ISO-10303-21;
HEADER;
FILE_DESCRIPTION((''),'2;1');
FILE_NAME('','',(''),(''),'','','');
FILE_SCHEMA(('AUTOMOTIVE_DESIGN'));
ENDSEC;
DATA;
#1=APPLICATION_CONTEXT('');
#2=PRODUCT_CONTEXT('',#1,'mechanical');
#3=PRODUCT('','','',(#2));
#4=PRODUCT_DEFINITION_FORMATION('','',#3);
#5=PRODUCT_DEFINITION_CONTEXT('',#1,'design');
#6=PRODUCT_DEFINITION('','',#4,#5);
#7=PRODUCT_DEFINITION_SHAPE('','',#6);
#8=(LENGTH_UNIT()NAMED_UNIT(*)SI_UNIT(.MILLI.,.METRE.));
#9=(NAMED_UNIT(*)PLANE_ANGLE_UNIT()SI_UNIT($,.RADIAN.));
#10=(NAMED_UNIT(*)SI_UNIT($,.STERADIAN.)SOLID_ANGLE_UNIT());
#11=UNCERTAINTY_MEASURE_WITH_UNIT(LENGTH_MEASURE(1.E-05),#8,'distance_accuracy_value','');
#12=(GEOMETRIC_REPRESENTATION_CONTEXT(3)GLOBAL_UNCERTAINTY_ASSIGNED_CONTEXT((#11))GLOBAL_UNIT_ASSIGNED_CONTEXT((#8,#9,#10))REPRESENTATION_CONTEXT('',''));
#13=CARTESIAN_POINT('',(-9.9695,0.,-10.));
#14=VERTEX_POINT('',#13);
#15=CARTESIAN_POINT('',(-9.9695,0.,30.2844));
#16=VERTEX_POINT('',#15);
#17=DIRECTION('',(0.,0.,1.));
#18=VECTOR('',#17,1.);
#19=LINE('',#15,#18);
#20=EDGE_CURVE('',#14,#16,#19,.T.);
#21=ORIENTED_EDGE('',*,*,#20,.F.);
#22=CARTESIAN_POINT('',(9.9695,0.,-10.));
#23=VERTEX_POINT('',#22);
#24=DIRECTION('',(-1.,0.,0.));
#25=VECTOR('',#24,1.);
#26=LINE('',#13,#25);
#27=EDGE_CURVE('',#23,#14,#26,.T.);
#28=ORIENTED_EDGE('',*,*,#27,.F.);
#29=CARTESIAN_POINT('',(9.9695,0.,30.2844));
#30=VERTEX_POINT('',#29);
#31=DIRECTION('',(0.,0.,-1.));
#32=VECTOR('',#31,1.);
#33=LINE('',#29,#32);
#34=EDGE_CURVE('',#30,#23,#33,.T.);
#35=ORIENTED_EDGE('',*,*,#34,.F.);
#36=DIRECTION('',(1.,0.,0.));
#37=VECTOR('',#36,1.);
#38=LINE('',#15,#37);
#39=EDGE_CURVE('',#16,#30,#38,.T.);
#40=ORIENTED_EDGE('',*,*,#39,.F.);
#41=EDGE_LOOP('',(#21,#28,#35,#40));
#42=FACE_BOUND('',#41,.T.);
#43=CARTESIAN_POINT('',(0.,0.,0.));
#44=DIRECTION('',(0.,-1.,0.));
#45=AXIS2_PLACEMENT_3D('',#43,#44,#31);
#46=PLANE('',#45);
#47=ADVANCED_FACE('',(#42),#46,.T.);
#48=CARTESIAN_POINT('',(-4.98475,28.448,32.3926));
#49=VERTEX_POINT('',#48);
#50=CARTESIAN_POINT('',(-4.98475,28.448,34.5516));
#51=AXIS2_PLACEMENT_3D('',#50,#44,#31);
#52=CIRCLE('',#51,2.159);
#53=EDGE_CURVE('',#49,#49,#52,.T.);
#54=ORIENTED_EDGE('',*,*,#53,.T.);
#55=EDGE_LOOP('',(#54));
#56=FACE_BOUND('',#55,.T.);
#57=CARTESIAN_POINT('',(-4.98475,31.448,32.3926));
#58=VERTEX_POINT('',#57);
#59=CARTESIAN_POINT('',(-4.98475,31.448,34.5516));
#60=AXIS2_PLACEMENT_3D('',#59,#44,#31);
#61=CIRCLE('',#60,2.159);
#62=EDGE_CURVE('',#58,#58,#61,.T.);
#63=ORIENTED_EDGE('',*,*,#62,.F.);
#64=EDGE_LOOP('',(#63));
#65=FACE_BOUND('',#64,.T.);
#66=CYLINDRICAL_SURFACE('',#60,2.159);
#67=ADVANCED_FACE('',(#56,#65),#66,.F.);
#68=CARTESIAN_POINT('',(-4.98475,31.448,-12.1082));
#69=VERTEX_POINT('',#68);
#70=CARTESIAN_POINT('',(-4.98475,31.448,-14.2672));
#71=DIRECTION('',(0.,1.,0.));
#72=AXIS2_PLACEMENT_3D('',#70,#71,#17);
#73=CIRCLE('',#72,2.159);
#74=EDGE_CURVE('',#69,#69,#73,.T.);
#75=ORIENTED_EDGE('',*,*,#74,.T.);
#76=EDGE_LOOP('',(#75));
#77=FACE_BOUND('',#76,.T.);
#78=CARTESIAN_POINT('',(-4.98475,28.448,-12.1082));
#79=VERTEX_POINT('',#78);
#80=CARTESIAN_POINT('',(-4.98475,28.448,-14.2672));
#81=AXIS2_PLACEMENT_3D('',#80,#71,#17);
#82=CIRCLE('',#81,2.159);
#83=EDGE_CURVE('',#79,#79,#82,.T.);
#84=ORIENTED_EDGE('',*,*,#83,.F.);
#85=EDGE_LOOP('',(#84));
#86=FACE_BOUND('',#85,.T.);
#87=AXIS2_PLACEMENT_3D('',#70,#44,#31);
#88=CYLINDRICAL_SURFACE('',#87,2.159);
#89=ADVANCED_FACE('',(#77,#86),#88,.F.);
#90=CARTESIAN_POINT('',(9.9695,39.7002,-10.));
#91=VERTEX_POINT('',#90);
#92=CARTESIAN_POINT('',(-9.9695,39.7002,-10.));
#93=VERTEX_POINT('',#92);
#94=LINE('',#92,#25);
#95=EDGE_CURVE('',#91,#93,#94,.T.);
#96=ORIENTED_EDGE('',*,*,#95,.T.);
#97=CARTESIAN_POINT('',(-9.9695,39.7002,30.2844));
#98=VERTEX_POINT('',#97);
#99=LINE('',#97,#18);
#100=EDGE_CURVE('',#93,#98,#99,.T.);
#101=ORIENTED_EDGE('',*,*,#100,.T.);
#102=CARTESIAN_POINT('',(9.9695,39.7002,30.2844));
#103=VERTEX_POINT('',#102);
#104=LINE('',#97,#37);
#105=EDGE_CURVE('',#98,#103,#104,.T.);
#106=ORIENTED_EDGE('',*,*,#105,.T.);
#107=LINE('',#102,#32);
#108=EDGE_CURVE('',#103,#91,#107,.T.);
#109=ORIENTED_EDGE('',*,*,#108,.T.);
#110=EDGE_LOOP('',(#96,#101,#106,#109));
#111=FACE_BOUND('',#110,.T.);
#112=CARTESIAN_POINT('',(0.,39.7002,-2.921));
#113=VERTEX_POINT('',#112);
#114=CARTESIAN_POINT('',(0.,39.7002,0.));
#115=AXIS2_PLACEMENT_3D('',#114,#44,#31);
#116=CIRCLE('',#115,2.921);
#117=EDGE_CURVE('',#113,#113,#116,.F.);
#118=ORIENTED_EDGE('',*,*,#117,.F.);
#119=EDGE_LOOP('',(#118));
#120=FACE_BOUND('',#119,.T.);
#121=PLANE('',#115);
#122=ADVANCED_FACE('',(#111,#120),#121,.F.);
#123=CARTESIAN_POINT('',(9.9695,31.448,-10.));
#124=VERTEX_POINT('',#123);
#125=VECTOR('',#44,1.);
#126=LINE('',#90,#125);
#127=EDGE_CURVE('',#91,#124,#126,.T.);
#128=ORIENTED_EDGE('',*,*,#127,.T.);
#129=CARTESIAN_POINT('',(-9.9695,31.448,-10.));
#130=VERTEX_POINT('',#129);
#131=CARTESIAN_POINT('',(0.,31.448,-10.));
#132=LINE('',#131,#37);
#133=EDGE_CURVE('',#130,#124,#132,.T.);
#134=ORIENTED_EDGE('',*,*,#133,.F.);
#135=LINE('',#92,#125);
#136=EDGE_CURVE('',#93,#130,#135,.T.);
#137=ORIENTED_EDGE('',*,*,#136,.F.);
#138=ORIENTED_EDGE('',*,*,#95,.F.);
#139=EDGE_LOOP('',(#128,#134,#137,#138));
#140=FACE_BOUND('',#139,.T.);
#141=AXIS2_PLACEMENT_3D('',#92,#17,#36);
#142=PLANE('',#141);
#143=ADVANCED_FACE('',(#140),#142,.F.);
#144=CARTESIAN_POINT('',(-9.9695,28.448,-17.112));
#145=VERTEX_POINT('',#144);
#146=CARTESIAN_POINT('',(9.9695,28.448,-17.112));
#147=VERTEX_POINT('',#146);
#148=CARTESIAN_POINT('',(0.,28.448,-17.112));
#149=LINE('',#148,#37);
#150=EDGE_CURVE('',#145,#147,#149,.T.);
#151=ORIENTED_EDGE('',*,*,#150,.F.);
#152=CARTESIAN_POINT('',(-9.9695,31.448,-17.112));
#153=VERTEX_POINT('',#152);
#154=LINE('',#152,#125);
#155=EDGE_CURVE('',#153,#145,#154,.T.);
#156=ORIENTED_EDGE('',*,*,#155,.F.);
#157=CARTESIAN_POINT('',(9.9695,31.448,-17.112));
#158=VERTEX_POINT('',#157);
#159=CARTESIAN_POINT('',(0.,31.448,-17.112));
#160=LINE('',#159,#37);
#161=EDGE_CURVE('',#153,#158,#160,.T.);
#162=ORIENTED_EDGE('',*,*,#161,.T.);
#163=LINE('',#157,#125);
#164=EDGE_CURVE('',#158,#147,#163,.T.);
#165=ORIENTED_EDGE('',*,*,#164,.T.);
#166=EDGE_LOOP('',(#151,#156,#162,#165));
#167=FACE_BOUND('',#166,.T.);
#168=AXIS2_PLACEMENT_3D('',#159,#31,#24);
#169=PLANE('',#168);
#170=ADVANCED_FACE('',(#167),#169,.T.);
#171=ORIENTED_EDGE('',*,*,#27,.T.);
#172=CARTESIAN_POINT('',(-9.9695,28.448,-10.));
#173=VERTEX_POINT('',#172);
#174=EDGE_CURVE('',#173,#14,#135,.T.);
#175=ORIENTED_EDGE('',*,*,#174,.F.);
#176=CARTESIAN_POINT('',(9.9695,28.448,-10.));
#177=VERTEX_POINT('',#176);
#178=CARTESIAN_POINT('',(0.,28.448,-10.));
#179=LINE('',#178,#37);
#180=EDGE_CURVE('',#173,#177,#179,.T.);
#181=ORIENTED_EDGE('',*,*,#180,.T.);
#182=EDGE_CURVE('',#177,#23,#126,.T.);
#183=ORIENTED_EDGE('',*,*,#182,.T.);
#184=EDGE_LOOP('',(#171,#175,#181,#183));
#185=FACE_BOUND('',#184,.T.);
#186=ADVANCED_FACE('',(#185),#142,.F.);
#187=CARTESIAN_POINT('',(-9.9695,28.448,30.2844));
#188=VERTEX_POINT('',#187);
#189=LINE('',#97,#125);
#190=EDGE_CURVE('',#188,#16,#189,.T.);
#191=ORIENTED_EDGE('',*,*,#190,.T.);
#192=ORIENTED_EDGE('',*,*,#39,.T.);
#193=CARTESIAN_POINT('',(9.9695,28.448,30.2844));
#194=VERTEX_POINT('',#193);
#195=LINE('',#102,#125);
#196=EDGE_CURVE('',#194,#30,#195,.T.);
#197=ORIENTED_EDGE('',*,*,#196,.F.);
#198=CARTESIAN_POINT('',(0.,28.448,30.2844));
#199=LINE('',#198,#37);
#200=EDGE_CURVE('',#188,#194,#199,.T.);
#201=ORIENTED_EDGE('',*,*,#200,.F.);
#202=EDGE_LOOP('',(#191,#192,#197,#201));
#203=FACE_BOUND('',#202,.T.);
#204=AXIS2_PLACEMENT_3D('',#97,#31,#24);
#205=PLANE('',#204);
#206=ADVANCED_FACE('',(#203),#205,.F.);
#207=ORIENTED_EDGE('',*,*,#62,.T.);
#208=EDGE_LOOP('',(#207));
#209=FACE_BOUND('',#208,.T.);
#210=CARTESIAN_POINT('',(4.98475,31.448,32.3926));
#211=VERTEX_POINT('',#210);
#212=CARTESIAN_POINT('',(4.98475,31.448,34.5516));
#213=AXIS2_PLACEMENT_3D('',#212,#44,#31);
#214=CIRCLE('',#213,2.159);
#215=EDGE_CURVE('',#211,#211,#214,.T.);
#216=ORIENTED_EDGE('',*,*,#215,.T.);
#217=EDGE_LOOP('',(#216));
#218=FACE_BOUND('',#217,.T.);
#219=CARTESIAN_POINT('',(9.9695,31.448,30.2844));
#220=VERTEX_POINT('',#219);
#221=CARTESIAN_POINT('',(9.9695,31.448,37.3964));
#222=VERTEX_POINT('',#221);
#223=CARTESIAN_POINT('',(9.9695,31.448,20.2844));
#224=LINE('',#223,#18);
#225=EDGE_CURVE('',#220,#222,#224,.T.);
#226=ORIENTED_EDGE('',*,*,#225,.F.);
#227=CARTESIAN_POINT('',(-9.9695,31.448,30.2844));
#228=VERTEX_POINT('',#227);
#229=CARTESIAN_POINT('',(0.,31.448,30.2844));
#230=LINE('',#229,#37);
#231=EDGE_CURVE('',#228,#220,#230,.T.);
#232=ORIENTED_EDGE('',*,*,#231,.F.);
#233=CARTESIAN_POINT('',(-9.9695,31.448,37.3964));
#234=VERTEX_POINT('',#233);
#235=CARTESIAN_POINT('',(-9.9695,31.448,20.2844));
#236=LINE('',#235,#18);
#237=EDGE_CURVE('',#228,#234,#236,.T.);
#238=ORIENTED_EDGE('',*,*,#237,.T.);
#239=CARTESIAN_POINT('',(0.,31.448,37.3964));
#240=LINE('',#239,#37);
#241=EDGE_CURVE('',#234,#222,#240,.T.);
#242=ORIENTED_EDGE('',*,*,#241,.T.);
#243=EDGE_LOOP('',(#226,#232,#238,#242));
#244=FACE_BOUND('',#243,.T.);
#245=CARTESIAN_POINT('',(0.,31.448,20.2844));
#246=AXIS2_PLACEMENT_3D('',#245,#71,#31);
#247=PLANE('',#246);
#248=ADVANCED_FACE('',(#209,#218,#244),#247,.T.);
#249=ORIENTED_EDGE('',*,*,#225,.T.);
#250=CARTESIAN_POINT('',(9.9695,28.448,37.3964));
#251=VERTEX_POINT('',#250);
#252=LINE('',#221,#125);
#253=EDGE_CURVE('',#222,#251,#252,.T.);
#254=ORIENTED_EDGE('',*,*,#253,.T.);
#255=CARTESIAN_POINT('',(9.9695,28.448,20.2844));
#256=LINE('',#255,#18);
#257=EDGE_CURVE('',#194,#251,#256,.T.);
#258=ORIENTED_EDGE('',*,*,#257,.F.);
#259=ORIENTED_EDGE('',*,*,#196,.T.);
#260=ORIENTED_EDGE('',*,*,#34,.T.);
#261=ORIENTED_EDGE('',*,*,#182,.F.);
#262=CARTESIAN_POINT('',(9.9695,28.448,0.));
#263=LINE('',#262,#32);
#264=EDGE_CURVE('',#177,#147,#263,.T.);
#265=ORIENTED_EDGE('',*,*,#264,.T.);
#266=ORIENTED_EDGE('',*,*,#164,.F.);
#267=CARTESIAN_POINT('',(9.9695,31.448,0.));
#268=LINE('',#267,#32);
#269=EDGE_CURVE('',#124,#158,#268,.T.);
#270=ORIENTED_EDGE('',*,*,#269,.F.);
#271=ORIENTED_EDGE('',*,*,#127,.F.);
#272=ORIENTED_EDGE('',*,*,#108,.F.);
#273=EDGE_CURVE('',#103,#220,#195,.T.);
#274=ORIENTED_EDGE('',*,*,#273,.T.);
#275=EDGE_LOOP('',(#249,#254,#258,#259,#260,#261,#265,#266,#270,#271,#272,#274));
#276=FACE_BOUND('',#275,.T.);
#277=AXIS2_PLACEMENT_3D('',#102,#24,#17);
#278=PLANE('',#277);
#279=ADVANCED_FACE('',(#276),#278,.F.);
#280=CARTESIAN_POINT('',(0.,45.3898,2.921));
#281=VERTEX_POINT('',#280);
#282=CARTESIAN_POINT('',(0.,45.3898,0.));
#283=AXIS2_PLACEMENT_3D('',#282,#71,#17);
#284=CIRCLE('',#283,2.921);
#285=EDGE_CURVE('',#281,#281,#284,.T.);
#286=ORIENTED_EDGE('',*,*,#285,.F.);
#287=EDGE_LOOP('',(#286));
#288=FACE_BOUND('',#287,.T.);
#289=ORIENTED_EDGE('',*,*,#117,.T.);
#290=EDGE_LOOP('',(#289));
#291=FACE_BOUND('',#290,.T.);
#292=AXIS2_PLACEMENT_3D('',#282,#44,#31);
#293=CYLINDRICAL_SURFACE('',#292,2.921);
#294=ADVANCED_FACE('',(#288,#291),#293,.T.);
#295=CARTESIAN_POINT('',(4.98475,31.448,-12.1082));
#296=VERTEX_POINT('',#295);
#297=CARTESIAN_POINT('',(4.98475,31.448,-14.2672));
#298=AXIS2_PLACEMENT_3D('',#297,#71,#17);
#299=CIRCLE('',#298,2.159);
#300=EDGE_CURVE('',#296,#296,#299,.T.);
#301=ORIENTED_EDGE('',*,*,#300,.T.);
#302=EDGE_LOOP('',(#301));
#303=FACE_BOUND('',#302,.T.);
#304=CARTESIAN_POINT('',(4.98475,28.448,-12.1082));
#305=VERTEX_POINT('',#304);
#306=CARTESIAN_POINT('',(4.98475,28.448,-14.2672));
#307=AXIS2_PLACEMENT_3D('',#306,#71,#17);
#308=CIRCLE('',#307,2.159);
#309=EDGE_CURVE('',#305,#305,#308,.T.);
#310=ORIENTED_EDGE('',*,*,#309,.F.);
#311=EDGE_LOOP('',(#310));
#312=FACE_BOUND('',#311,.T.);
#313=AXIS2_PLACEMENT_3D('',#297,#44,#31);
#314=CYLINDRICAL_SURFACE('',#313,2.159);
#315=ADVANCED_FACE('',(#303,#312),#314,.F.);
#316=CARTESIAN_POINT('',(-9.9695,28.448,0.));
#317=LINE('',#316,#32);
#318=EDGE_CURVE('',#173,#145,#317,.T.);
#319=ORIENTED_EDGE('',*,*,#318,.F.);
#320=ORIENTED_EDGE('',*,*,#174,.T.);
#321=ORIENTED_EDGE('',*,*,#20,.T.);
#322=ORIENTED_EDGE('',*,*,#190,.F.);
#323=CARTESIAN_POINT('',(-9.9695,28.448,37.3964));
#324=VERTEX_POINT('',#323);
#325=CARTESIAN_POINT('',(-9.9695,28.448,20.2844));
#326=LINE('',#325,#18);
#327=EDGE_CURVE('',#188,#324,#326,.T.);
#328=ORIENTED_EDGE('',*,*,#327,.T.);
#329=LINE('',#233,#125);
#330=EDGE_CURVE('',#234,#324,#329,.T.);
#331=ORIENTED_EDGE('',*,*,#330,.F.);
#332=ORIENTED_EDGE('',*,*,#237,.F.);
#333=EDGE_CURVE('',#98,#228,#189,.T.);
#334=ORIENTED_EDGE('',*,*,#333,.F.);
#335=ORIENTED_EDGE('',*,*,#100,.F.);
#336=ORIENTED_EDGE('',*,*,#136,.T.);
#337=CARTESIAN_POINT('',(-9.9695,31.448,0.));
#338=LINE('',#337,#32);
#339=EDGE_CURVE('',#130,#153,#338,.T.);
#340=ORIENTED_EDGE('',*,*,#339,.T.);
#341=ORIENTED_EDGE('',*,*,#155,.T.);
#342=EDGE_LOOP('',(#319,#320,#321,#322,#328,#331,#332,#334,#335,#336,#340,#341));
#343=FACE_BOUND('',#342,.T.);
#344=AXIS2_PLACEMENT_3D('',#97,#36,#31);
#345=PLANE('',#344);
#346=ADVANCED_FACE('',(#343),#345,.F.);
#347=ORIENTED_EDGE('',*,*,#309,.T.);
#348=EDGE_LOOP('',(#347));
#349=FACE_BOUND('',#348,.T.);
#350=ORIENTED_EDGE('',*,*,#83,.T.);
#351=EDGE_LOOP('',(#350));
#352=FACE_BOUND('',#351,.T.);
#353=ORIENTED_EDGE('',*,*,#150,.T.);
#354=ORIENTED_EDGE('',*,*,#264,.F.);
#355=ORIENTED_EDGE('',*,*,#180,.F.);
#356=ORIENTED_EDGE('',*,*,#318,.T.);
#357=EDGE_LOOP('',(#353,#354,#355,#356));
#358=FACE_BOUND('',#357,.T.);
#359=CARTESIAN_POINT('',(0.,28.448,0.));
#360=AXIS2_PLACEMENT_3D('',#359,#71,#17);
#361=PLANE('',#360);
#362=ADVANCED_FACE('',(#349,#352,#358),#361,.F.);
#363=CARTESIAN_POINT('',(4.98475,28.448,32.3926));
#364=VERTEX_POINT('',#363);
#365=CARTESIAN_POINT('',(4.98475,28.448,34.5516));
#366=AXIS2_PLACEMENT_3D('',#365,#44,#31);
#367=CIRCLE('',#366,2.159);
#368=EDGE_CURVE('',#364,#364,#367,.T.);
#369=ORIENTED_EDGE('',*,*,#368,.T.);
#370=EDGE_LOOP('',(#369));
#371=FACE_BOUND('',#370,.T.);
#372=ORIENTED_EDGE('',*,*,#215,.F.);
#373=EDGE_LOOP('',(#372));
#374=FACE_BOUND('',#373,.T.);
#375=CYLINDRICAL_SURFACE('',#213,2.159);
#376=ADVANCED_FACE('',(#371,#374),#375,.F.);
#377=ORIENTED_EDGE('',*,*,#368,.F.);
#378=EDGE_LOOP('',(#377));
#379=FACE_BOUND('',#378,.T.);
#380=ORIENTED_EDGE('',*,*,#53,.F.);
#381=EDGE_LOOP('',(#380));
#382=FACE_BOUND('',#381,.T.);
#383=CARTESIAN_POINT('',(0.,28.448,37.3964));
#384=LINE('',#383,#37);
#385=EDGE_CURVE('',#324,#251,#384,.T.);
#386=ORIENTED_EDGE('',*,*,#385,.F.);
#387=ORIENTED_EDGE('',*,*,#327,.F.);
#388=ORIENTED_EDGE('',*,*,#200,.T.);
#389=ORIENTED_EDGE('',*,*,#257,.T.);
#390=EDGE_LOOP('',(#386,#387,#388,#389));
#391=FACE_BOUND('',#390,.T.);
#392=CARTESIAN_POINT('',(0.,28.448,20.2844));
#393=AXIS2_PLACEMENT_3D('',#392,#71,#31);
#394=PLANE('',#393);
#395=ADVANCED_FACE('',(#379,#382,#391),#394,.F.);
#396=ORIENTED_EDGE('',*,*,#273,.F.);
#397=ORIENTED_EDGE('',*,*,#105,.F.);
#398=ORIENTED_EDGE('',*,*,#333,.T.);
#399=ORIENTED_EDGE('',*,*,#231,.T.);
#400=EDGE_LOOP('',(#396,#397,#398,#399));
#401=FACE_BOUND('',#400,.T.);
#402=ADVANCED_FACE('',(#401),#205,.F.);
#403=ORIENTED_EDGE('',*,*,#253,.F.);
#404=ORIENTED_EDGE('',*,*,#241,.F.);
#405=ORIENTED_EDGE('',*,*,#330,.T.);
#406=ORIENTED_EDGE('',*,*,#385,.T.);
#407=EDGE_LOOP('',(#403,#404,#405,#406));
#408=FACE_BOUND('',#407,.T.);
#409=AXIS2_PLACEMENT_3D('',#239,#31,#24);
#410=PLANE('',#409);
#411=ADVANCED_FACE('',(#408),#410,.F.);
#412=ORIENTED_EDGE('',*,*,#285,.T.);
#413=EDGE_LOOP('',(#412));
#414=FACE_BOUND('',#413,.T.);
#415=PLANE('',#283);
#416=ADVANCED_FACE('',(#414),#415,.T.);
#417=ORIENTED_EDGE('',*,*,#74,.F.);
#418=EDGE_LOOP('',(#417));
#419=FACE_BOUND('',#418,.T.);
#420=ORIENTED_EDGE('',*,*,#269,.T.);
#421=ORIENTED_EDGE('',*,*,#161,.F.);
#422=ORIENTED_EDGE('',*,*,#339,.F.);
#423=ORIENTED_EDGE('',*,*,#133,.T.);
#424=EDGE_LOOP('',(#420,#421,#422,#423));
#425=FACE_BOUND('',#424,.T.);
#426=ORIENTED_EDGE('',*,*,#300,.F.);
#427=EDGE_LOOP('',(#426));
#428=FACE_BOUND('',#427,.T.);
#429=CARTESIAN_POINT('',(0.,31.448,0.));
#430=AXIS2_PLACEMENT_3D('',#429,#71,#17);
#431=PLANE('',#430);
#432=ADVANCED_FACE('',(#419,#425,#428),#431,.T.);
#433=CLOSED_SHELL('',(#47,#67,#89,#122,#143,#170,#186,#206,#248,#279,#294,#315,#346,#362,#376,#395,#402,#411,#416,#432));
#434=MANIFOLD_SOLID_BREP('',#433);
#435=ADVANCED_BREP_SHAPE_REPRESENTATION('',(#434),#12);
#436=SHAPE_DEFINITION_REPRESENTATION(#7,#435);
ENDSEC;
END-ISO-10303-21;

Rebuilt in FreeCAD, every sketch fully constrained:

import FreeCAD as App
import Part
import Sketcher

V = App.Vector
Q = App.Units.Quantity

doc = App.newDocument("Part")
params = doc.addObject("Spreadsheet::Sheet", "Params")
for row, (alias, value) in enumerate([
    ("sketch1_width", "0.785 in"),
    ("sketch1_height", "1.586 in"),
    ("pad1_length", "1.563 in"),
    ("sketch2_diameter", "0.23 in"),
    ("pad2_length", "0.224 in"),
    ("sketch3_diameter", "0.17 in"),
    ("sketch3_height", "0.28 in"),
    ("sketch3_width", "0.785 in"),
    ("pad3_length", "3 mm"),
], start=1):
    params.set(f"A{row}", alias)
    params.set(f"B{row}", "=" + value)
    params.setAlias(f"B{row}", alias)

body = doc.addObject("PartDesign::Body", "Body")

# Sketch on XZ plane
sketch1 = doc.addObject("Sketcher::SketchObject", "Sketch")
body.addObject(sketch1)
sketch1.AttachmentSupport = (doc.XZ_Plane, [""])
sketch1.MapMode = "FlatFace"
sketch1.addGeometry(Part.LineSegment(V(-10, -10, 0), V(-10, 30, 0)), False)
sketch1.addGeometry(Part.LineSegment(V(-10, 30, 0), V(10, 30, 0)), False)
sketch1.addGeometry(Part.LineSegment(V(10, 30, 0), V(10, -10, 0)), False)
sketch1.addGeometry(Part.LineSegment(V(10, -10, 0), V(-10, -10, 0)), False)
sketch1.addConstraint(Sketcher.Constraint("Coincident", 0, 2, 1, 1))
sketch1.addConstraint(Sketcher.Constraint("Coincident", 1, 2, 2, 1))
sketch1.addConstraint(Sketcher.Constraint("Coincident", 2, 2, 3, 1))
sketch1.addConstraint(Sketcher.Constraint("Coincident", 3, 2, 0, 1))
sketch1.addConstraint(Sketcher.Constraint("Vertical", 0))
sketch1.addConstraint(Sketcher.Constraint("Horizontal", 1))
sketch1.addConstraint(Sketcher.Constraint("Vertical", 2))
sketch1.addConstraint(Sketcher.Constraint("Horizontal", 3))
sketch1.addConstraint(Sketcher.Constraint("DistanceX", 1, 1, 1, 2, Q("0.785 in")))
sketch1.addConstraint(Sketcher.Constraint("DistanceY", 0, 1, 0, 2, Q("1.586 in")))
sketch1.addConstraint(Sketcher.Constraint("DistanceX", 0, 2, -1, 1, Q("0.3925 in")))
sketch1.addConstraint(Sketcher.Constraint("DistanceY", -1, 1, 0, 2, 30.2844))
sketch1.setExpression("Constraints[8]", "Params.sketch1_width")
sketch1.setExpression("Constraints[9]", "Params.sketch1_height")
pad1 = doc.addObject("PartDesign::Pad", "Pad")
body.addObject(pad1)
pad1.Profile = sketch1
pad1.setExpression("Length", "Params.pad1_length")
pad1.Reversed = True

# Sketch on XZ plane
sketch2 = doc.addObject("Sketcher::SketchObject", "Sketch001")
body.addObject(sketch2)
sketch2.AttachmentSupport = (doc.XZ_Plane, [""])
sketch2.MapMode = "FlatFace"
sketch2.AttachmentOffset = App.Placement(V(0, 0, -1.563 * 25.4), App.Rotation())
sketch2.addGeometry(Part.Circle(V(0, 0, 0), V(0, 0, 1), 2.9), False)
sketch2.addConstraint(Sketcher.Constraint("Coincident", 0, 3, -1, 1))
sketch2.addConstraint(Sketcher.Constraint("Diameter", 0, Q("0.23 in")))
sketch2.setExpression("Constraints[1]", "Params.sketch2_diameter")
pad2 = doc.addObject("PartDesign::Pad", "Pad001")
body.addObject(pad2)
pad2.Profile = sketch2
pad2.setExpression("Length", "Params.pad2_length")
pad2.Reversed = True

# Sketch on XZ plane
sketch3 = doc.addObject("Sketcher::SketchObject", "Sketch002")
body.addObject(sketch3)
sketch3.AttachmentSupport = (doc.XZ_Plane, [""])
sketch3.MapMode = "FlatFace"
sketch3.AttachmentOffset = App.Placement(V(0, 0, -1.12 * 25.4), App.Rotation())
sketch3.addGeometry(Part.LineSegment(V(-10, -17.1, 0), V(-10, -10, 0)), False)
sketch3.addGeometry(Part.LineSegment(V(-10, -10, 0), V(10, -10, 0)), False)
sketch3.addGeometry(Part.LineSegment(V(10, -10, 0), V(10, -17.1, 0)), False)
sketch3.addGeometry(Part.LineSegment(V(10, -17.1, 0), V(-10, -17.1, 0)), False)
sketch3.addGeometry(Part.Circle(V(-5, -14.3, 0), V(0, 0, 1), 2.2), False)
sketch3.addGeometry(Part.Circle(V(5, -14.3, 0), V(0, 0, 1), 2.2), False)
sketch3.addConstraint(Sketcher.Constraint("Coincident", 0, 2, 1, 1))
sketch3.addConstraint(Sketcher.Constraint("Coincident", 1, 2, 2, 1))
sketch3.addConstraint(Sketcher.Constraint("Coincident", 2, 2, 3, 1))
sketch3.addConstraint(Sketcher.Constraint("Coincident", 3, 2, 0, 1))
sketch3.addConstraint(Sketcher.Constraint("Vertical", 0))
sketch3.addConstraint(Sketcher.Constraint("Horizontal", 1))
sketch3.addConstraint(Sketcher.Constraint("Vertical", 2))
sketch3.addConstraint(Sketcher.Constraint("Horizontal", 3))
sketch3.addConstraint(Sketcher.Constraint("Equal", 4, 5))
sketch3.addConstraint(Sketcher.Constraint("Symmetric", 4, 3, 5, 3, -2))
sketch3.addConstraint(Sketcher.Constraint("Diameter", 4, Q("0.17 in")))
sketch3.addConstraint(Sketcher.Constraint("DistanceY", 0, 1, 0, 2, Q("0.28 in")))
sketch3.addConstraint(Sketcher.Constraint("DistanceX", 1, 1, 1, 2, Q("0.785 in")))
sketch3.addConstraint(Sketcher.Constraint("DistanceY", 4, 3, 0, 2, Q("0.168 in")))
sketch3.addConstraint(Sketcher.Constraint("DistanceX", 0, 2, -1, 1, Q("0.3925 in")))
sketch3.addConstraint(Sketcher.Constraint("DistanceX", 4, 3, 5, 3, Q("0.3925 in")))
sketch3.addConstraint(Sketcher.Constraint("DistanceY", 4, 3, -1, 1, 14.2672))
sketch3.setExpression("Constraints[10]", "Params.sketch3_diameter")
sketch3.setExpression("Constraints[11]", "Params.sketch3_height")
sketch3.setExpression("Constraints[12]", "Params.sketch3_width")
pad3 = doc.addObject("PartDesign::Pad", "Pad002")
body.addObject(pad3)
pad3.Profile = sketch3
pad3.setExpression("Length", "Params.pad3_length")
pad3.Reversed = True
doc.recompute()

datumplane = doc.addObject("PartDesign::Plane", "DatumPlane")
body.addObject(datumplane)
datumplane.AttachmentSupport = (doc.XY_Plane, [""])
datumplane.MapMode = "FlatFace"
datumplane.AttachmentOffset = App.Placement(V(0, 0, 10.1422), App.Rotation())
mirrored = doc.addObject("PartDesign::Mirrored", "Mirrored")
body.addObject(mirrored)
mirrored.Originals = [pad3]
mirrored.MirrorPlane = (datumplane, [""])
body.Tip = mirrored

doc.recompute()
